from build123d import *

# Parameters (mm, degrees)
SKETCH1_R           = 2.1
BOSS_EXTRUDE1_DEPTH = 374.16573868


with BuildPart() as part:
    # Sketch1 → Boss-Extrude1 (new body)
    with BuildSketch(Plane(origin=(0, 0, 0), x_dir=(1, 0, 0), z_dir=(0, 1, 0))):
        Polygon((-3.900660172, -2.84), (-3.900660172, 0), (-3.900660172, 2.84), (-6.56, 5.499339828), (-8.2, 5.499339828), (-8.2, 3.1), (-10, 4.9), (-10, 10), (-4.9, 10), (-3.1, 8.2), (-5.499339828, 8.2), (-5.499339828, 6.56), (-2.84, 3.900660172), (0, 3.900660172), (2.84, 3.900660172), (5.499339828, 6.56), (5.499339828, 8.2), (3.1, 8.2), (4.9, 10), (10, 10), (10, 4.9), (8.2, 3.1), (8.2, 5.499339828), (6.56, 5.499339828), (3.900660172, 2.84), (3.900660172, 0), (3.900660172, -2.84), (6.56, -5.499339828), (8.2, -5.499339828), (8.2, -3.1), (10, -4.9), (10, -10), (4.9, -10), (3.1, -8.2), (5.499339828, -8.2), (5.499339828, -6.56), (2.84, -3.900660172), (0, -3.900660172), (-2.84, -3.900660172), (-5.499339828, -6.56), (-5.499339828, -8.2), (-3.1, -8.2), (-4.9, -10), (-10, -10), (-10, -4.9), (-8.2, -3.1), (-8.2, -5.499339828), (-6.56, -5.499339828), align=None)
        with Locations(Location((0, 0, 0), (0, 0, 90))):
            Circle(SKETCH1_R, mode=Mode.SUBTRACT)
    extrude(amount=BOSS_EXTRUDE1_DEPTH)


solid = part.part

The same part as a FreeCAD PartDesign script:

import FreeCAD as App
import Part
import Sketcher
from FreeCAD import Vector


def add_polygon(sketch, points):
    """Adds a closed chain of lines whose ends are joined by coincident constraints."""
    first, n = sketch.GeometryCount, len(points)
    for a, b in zip(points, points[1:] + points[:1]):
        sketch.addGeometry(Part.LineSegment(App.Vector(*a, 0), App.Vector(*b, 0)), False)
    for i in range(n):
        sketch.addConstraint(Sketcher.Constraint("Coincident", first + i, 2, first + (i + 1) % n, 1))

doc = App.newDocument("Part")
params = doc.addObject("Spreadsheet::Sheet", "Params")
for row, (alias, value) in enumerate([
    ("sketch1_diameter", "4.2 mm"),
    ("sketch1_width", "5.1 mm"),
    ("sketch1_width2", "1.64 mm"),
    ("sketch1_width3", "5.68 mm"),
    ("pad1_length", "374.165739 mm"),
], start=1):
    params.set(f"A{row}", alias)
    params.set(f"B{row}", "=" + value)
    params.setAlias(f"B{row}", alias)

body = doc.addObject("PartDesign::Body", "Body")

# Sketch on XZ plane
sketch1 = doc.addObject("Sketcher::SketchObject", "Sketch")
body.addObject(sketch1)
sketch1.AttachmentSupport = (doc.XZ_Plane, [""])
sketch1.MapMode = "FlatFace"
add_polygon(sketch1, [(-3.9, -2.8), (-3.9, 2.8), (-6.6, 5.5), (-8.2, 5.5), (-8.2, 3.1), (-10, 4.9), (-10, 10), (-4.9, 10), (-3.1, 8.2), (-5.5, 8.2), (-5.5, 6.6), (-2.8, 3.9), (2.8, 3.9), (5.5, 6.6), (5.5, 8.2), (3.1, 8.2), (4.9, 10), (10, 10), (10, 4.9), (8.2, 3.1), (8.2, 5.5), (6.6, 5.5), (3.9, 2.8), (3.9, -2.8), (6.6, -5.5), (8.2, -5.5), (8.2, -3.1), (10, -4.9), (10, -10), (4.9, -10), (3.1, -8.2), (5.5, -8.2), (5.5, -6.6), (2.8, -3.9), (-2.8, -3.9), (-5.5, -6.6), (-5.5, -8.2), (-3.1, -8.2), (-4.9, -10), (-10, -10), (-10, -4.9), (-8.2, -3.1), (-8.2, -5.5), (-6.6, -5.5)])  # lines 0-43
sketch1.addGeometry(Part.Circle(Vector(0, 0, 0), Vector(0, 0, 1), 2.1), False)  # 44
sketch1.addConstraint([
    Sketcher.Constraint("Vertical", 0),
    Sketcher.Constraint("Horizontal", 2),
    Sketcher.Constraint("Vertical", 3),
    Sketcher.Constraint("Vertical", 5),
    Sketcher.Constraint("Horizontal", 6),
    Sketcher.Constraint("Horizontal", 8),
    Sketcher.Constraint("Vertical", 9),
    Sketcher.Constraint("Horizontal", 11),
    Sketcher.Constraint("Vertical", 13),
    Sketcher.Constraint("Horizontal", 14),
    Sketcher.Constraint("Horizontal", 16),
    Sketcher.Constraint("Vertical", 17),
    Sketcher.Constraint("Vertical", 19),
    Sketcher.Constraint("Horizontal", 20),
    Sketcher.Constraint("Vertical", 22),
    Sketcher.Constraint("Horizontal", 24),
    Sketcher.Constraint("Vertical", 25),
    Sketcher.Constraint("Vertical", 27),
    Sketcher.Constraint("Horizontal", 28),
    Sketcher.Constraint("Horizontal", 30),
    Sketcher.Constraint("Vertical", 31),
    Sketcher.Constraint("Horizontal", 33),
    Sketcher.Constraint("Vertical", 35),
    Sketcher.Constraint("Horizontal", 36),
    Sketcher.Constraint("Horizontal", 38),
    Sketcher.Constraint("Vertical", 39),
    Sketcher.Constraint("Vertical", 41),
    Sketcher.Constraint("Horizontal", 42),
    Sketcher.Constraint("Coincident", 44, 3, -1, 1),
    Sketcher.Constraint("Symmetric", 0, 2, 22, 2, -1, 1),
    Sketcher.Constraint("Symmetric", 1, 2, 23, 2, -1, 1),
    Sketcher.Constraint("Symmetric", 3, 2, 25, 2, -1, 1),
    Sketcher.Constraint("Symmetric", 4, 2, 26, 2, -1, 1),
    Sketcher.Constraint("Symmetric", 6, 2, 28, 2, -1, 1),
    Sketcher.Constraint("Symmetric", 7, 2, 29, 2, -1, 1),
    Sketcher.Constraint("Symmetric", 9, 2, 31, 2, -1, 1),
    Sketcher.Constraint("Symmetric", 10, 2, 32, 2, -1, 1),
    Sketcher.Constraint("Symmetric", 12, 2, 34, 2, -1, 1),
    Sketcher.Constraint("Symmetric", 14, 2, 36, 2, -1, 1),
    Sketcher.Constraint("Symmetric", 15, 2, 37, 2, -1, 1),
    Sketcher.Constraint("Symmetric", 17, 2, 39, 2, -1, 1),
    Sketcher.Constraint("Symmetric", 18, 2, 40, 2, -1, 1),
    Sketcher.Constraint("Symmetric", 20, 2, 42, 2, -1, 1),
    Sketcher.Constraint("Symmetric", 9, 2, 12, 2, -2),
    Sketcher.Constraint("Symmetric", 7, 2, 14, 2, -2),
    Sketcher.Constraint("Symmetric", 6, 2, 15, 2, -2),
    Sketcher.Constraint("Symmetric", 4, 2, 17, 2, -2),
    Sketcher.Constraint("Symmetric", 3, 2, 18, 2, -2),
    Sketcher.Constraint("Symmetric", 1, 2, 20, 2, -2),
    Sketcher.Constraint("Parallel", 1, 4),
    Sketcher.Constraint("Parallel", 4, 7),
    Sketcher.Constraint("Parallel", 7, 10),
    Sketcher.Constraint("Perpendicular", 10, 12),
    Sketcher.Constraint("Parallel", 12, 15),
    Sketcher.Constraint("Parallel", 18, 21),
    Sketcher.Constraint("Perpendicular", 32, 34),
    Sketcher.Constraint("Parallel", 40, 43),
    Sketcher.Constraint("Equal", 33, 0),
    Sketcher.Constraint("Equal", 36, 3),
    Sketcher.Constraint("Equal", 38, 5),
    Sketcher.Constraint("Equal", 42, 9),
    Sketcher.Constraint("Equal", 4, 7),
    Sketcher.Constraint("Equal", 1, 10),
    Sketcher.Constraint("Diameter", 44, 4.2),
    Sketcher.Constraint("DistanceX", 6, 1, 6, 2, 5.1),
    Sketcher.Constraint("DistanceX", 4, 2, -1, 1, 10.0),
    Sketcher.Constraint("DistanceX", 7, 2, 15, 2, 8.0),
    Sketcher.Constraint("DistanceX", 2, 2, 2, 1, 1.64),
    Sketcher.Constraint("DistanceX", 11, 1, 11, 2, 5.68),
    Sketcher.Constraint("DistanceX", 8, 2, 8, 1, 2.39934),
])
sketch1.setExpression("Constraints[107]", "Params.sketch1_diameter")
sketch1.setExpression("Constraints[108]", "Params.sketch1_width")
sketch1.setExpression("Constraints[111]", "Params.sketch1_width2")
sketch1.setExpression("Constraints[112]", "Params.sketch1_width3")
pad1 = doc.addObject("PartDesign::Pad", "Pad")
body.addObject(pad1)
pad1.Profile = sketch1
pad1.setExpression("Length", "Params.pad1_length")
pad1.Reversed = True

doc.recompute()
